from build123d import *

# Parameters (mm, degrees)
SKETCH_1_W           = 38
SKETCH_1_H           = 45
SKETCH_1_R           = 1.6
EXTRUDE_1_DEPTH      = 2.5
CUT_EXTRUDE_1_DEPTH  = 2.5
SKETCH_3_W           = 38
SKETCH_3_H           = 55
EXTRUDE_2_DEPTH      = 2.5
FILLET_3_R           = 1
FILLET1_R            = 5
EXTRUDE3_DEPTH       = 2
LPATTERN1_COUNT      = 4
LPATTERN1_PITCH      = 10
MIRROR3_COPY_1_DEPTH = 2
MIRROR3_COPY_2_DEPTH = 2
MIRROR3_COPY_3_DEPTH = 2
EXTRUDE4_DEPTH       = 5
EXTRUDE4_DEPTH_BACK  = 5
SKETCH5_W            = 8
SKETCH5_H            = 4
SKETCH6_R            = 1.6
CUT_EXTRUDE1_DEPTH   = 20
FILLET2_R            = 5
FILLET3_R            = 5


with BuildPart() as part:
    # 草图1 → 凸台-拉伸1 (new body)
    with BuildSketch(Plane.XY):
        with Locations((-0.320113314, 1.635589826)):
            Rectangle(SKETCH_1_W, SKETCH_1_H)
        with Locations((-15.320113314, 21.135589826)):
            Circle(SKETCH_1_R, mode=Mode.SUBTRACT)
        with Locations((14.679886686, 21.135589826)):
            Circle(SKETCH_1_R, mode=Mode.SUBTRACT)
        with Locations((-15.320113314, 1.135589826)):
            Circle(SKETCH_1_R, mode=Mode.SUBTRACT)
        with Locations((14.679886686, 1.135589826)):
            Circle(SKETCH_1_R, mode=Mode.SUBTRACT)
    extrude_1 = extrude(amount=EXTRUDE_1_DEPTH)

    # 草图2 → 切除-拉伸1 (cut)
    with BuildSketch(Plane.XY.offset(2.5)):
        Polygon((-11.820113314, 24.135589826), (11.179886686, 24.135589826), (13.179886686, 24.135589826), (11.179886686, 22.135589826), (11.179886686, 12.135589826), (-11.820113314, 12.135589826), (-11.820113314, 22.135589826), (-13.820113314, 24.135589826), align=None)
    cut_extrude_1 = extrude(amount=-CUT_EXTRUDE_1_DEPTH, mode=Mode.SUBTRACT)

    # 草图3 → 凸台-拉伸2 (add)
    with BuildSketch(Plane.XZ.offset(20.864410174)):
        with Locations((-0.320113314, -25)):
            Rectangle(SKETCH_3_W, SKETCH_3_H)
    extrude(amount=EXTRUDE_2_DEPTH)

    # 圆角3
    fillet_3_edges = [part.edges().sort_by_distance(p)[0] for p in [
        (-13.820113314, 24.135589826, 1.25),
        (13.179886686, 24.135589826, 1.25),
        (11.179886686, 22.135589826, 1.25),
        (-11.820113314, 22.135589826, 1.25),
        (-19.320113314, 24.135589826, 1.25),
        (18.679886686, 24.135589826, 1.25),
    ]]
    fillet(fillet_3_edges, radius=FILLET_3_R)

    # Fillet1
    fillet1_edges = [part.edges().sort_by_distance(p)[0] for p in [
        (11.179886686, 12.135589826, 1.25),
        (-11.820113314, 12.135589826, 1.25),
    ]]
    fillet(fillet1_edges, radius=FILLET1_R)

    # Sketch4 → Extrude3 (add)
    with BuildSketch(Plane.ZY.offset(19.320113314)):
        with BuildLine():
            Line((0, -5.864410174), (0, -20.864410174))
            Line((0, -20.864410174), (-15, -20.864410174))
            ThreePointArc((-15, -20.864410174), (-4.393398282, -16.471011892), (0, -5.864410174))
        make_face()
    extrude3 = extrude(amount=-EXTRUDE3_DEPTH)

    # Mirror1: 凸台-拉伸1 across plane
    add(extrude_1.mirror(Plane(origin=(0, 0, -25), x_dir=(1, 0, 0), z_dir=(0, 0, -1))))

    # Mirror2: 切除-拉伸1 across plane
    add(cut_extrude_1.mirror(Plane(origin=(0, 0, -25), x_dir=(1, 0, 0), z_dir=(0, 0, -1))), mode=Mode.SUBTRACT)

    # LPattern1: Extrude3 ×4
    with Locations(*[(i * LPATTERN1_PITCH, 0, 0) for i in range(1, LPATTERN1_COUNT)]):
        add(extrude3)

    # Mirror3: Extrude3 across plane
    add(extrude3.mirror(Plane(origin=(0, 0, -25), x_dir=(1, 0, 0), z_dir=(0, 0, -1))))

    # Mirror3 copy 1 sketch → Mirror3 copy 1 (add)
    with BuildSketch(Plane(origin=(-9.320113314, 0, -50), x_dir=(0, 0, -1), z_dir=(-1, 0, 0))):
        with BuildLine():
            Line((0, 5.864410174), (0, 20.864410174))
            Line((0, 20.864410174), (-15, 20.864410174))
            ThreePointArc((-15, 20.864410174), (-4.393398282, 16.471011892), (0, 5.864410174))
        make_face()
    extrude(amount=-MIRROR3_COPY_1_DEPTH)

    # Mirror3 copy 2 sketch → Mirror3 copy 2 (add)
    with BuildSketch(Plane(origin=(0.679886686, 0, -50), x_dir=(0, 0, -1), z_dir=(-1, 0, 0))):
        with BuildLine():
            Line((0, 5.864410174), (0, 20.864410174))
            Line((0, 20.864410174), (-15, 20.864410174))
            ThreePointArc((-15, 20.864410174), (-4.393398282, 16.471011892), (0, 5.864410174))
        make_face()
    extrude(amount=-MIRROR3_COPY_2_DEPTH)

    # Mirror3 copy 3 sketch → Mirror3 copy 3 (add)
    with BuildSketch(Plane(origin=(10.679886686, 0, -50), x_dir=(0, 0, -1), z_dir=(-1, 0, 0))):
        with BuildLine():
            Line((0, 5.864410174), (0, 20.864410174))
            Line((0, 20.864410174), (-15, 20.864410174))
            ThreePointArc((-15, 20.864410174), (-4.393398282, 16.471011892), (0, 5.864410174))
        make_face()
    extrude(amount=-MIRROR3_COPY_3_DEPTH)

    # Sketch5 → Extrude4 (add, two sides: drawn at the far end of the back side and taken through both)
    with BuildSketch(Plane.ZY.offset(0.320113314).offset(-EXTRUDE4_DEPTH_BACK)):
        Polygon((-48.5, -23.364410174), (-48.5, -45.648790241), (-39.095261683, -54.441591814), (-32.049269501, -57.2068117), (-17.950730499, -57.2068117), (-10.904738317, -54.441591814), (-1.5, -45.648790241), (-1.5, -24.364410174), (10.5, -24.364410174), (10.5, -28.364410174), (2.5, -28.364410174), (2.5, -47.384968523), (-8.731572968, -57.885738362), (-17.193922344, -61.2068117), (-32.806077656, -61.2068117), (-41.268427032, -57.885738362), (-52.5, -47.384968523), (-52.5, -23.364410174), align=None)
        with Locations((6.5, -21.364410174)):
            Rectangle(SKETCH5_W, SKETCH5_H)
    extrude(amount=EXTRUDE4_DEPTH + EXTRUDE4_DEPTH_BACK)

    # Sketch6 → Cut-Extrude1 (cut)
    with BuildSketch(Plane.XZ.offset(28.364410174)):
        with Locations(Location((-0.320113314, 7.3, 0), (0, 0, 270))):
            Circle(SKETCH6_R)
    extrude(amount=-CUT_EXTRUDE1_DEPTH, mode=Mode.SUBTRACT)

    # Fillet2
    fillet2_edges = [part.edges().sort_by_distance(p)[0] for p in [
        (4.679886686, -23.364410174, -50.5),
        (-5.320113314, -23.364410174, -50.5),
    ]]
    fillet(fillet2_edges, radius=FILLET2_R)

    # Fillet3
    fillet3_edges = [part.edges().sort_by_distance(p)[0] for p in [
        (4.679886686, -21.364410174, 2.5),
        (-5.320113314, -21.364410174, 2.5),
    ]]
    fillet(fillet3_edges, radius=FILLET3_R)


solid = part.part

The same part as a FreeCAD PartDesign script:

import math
import FreeCAD as App
import Part
import Sketcher

V = App.Vector


def edges_at(feature, points):
    """Names of the edges that pass closest to the given points."""
    edges = feature.Shape.Edges
    near = lambda p: min(range(len(edges)), key=lambda i: edges[i].distToShape(Part.Vertex(*p))[0])
    return sorted({f"Edge{near(p) + 1}" for p in points})

doc = App.newDocument("Part")
body = doc.addObject("PartDesign::Body", "Body")

sketch1 = doc.addObject("Sketcher::SketchObject", "Sketch")
body.addObject(sketch1)
sketch1.AttachmentSupport = (doc.XY_Plane, [""])
sketch1.MapMode = "FlatFace"
sketch1.addGeometry([
    Part.LineSegment(V(-19.3, 24.1, 0), V(-19.3, -20.9, 0)),
    Part.LineSegment(V(-19.3, -20.9, 0), V(18.7, -20.9, 0)),
    Part.LineSegment(V(18.7, -20.9, 0), V(18.7, 24.1, 0)),
    Part.LineSegment(V(18.7, 24.1, 0), V(-19.3, 24.1, 0)),
    Part.Circle(V(-15.3, 1.1, 0), V(0, 0, 1), 1.6),
    Part.Circle(V(14.7, 1.1, 0), V(0, 0, 1), 1.6),
    Part.Circle(V(-15.3, 21.1, 0), V(0, 0, 1), 1.6),
    Part.Circle(V(14.7, 21.1, 0), V(0, 0, 1), 1.6),
], False)
sketch1.addConstraint([
    Sketcher.Constraint("Coincident", 0, 2, 1, 1),
    Sketcher.Constraint("Coincident", 1, 2, 2, 1),
    Sketcher.Constraint("Coincident", 2, 2, 3, 1),
    Sketcher.Constraint("Coincident", 3, 2, 0, 1),
    Sketcher.Constraint("Vertical", 0),
    Sketcher.Constraint("Horizontal", 1),
    Sketcher.Constraint("Vertical", 2),
    Sketcher.Constraint("Horizontal", 3),
    Sketcher.Constraint("Equal", 4, 5),
    Sketcher.Constraint("Equal", 5, 6),
    Sketcher.Constraint("Equal", 6, 7),
    Sketcher.Constraint("Horizontal", 4, 3, 5, 3),
    Sketcher.Constraint("Horizontal", 6, 3, 7, 3),
    Sketcher.Constraint("Vertical", 4, 3, 6, 3),
    Sketcher.Constraint("Vertical", 5, 3, 7, 3),
    Sketcher.Constraint("Diameter", 4, 3.2),
    Sketcher.Constraint("DistanceX", 1, 1, 1, 2, 38.0),
    Sketcher.Constraint("DistanceY", 0, 2, 0, 1, 45.0),
    Sketcher.Constraint("DistanceX", 4, 3, 5, 3, 30.0),
    Sketcher.Constraint("DistanceY", 4, 3, 6, 3, 20.0),
    Sketcher.Constraint("DistanceX", 0, 2, 4, 3, 4.0),
    Sketcher.Constraint("DistanceY", 0, 2, 4, 3, 22.0),
    Sketcher.Constraint("DistanceY", -1, 1, 4, 3, 1.13559),
    Sketcher.Constraint("DistanceX", 4, 3, -1, 1, 15.320113),
])
pad1 = doc.addObject("PartDesign::Pad", "Pad")
body.addObject(pad1)
pad1.Profile = sketch1
pad1.Length = 2.5

sketch2 = doc.addObject("Sketcher::SketchObject", "Sketch001")
body.addObject(sketch2)
sketch2.AttachmentSupport = (doc.XY_Plane, [""])
sketch2.MapMode = "FlatFace"
sketch2.AttachmentOffset = App.Placement(V(0, 0, 2.5), App.Rotation())
sketch2.addGeometry([
    Part.LineSegment(V(13.2, 24.1, 0), V(-13.8, 24.1, 0)),
    Part.LineSegment(V(-13.8, 24.1, 0), V(-11.8, 22.1, 0)),
    Part.LineSegment(V(-11.8, 22.1, 0), V(-11.8, 12.1, 0)),
    Part.LineSegment(V(-11.8, 12.1, 0), V(11.2, 12.1, 0)),
    Part.LineSegment(V(11.2, 12.1, 0), V(11.2, 22.1, 0)),
    Part.LineSegment(V(11.2, 22.1, 0), V(13.2, 24.1, 0)),
], False)
sketch2.addConstraint([
    Sketcher.Constraint("Coincident", 0, 2, 1, 1),
    Sketcher.Constraint("Coincident", 1, 2, 2, 1),
    Sketcher.Constraint("Coincident", 2, 2, 3, 1),
    Sketcher.Constraint("Coincident", 3, 2, 4, 1),
    Sketcher.Constraint("Coincident", 4, 2, 5, 1),
    Sketcher.Constraint("Coincident", 5, 2, 0, 1),
    Sketcher.Constraint("Horizontal", 0),
    Sketcher.Constraint("Vertical", 2),
    Sketcher.Constraint("Horizontal", 3),
    Sketcher.Constraint("Vertical", 4),
    Sketcher.Constraint("Perpendicular", 1, 5),
    Sketcher.Constraint("Horizontal", 1, 2, 4, 2),
    Sketcher.Constraint("Equal", 1, 5),
    Sketcher.Constraint("DistanceX", 0, 2, 0, 1, 27.0),
    Sketcher.Constraint("DistanceX", 3, 1, 3, 2, 23.0),
    Sketcher.Constraint("DistanceY", 2, 2, 2, 1, 10.0),
    Sketcher.Constraint("DistanceY", -1, 1, 0, 2, 24.13559),
    Sketcher.Constraint("DistanceX", 0, 2, -1, 1, 13.820113),
])
pocket1 = doc.addObject("PartDesign::Pocket", "Pocket")
body.addObject(pocket1)
pocket1.Profile = sketch2
pocket1.Length = 2.5

sketch3 = doc.addObject("Sketcher::SketchObject", "Sketch002")
body.addObject(sketch3)
sketch3.AttachmentSupport = (doc.XZ_Plane, [""])
sketch3.MapMode = "FlatFace"
sketch3.AttachmentOffset = App.Placement(V(0, 0, 20.86441), App.Rotation())
sketch3.addGeometry([
    Part.LineSegment(V(-19, 2, 0), V(-19, -52, 0)),
    Part.LineSegment(V(-19, -52, 0), V(19, -52, 0)),
    Part.LineSegment(V(19, -52, 0), V(19, 2, 0)),
    Part.LineSegment(V(19, 2, 0), V(-19, 2, 0)),
], False)
sketch3.addConstraint([
    Sketcher.Constraint("Coincident", 0, 2, 1, 1),
    Sketcher.Constraint("Coincident", 1, 2, 2, 1),
    Sketcher.Constraint("Coincident", 2, 2, 3, 1),
    Sketcher.Constraint("Coincident", 3, 2, 0, 1),
    Sketcher.Constraint("Vertical", 0),
    Sketcher.Constraint("Horizontal", 1),
    Sketcher.Constraint("Vertical", 2),
    Sketcher.Constraint("Horizontal", 3),
    Sketcher.Constraint("DistanceX", 1, 1, 1, 2, 38.0),
    Sketcher.Constraint("DistanceY", 0, 2, 0, 1, 55.0),
    Sketcher.Constraint("DistanceY", 0, 2, -1, 1, 52.5),
    Sketcher.Constraint("DistanceX", 0, 2, -1, 1, 19.320113),
])
pad2 = doc.addObject("PartDesign::Pad", "Pad001")
body.addObject(pad2)
pad2.Profile = sketch3
pad2.Length = 2.5
doc.recompute()

fillet = doc.addObject("PartDesign::Fillet", "Fillet")
body.addObject(fillet)
fillet.Base = (pad2, edges_at(pad2, [
    (-13.82, 24.136, 1.25),
    (13.18, 24.136, 1.25),
    (11.18, 22.136, 1.25),
    (-11.82, 22.136, 1.25),
    (-19.32, 24.136, 1.25),
    (18.68, 24.136, 1.25),
]))
fillet.Radius = 1
doc.recompute()

fillet2 = doc.addObject("PartDesign::Fillet", "Fillet001")
body.addObject(fillet2)
fillet2.Base = (fillet, edges_at(fillet, [(11.18, 12.136, 1.25), (-11.82, 12.136, 1.25)]))
fillet2.Radius = 5

sketch4 = doc.addObject("Sketcher::SketchObject", "Sketch003")
body.addObject(sketch4)
sketch4.AttachmentSupport = (doc.YZ_Plane, [""])
sketch4.MapMode = "FlatFace"
sketch4.AttachmentOffset = App.Placement(V(0, 0, -19.320113), App.Rotation())
sketch4.addGeometry([
    Part.LineSegment(V(-21, 0, 0), V(-6, 0, 0)),
    Part.ArcOfCircle(Part.Circle(V(-6, -15, 0), V(0, 0, 1), 15), math.radians(90), math.radians(180)),
    Part.LineSegment(V(-21, -15, 0), V(-21, 0, 0)),
], False)
sketch4.addConstraint([
    Sketcher.Constraint("Tangent", 0, 2, 1, 1),
    Sketcher.Constraint("Tangent", 1, 2, 2, 1),
    Sketcher.Constraint("Coincident", 2, 2, 0, 1),
    Sketcher.Constraint("Horizontal", 0),
    Sketcher.Constraint("Vertical", 2),
    Sketcher.Constraint("PointOnObject", 0, 2, -1),
    Sketcher.Constraint("Radius", 1, 15.0),
    Sketcher.Constraint("DistanceX", 1, 3, -1, 1, 5.86441),
])
pad3 = doc.addObject("PartDesign::Pad", "Pad002")
body.addObject(pad3)
pad3.Profile = sketch4
pad3.Length = 2
doc.recompute()

datumplane = doc.addObject("PartDesign::Plane", "DatumPlane")
body.addObject(datumplane)
datumplane.AttachmentSupport = (doc.XY_Plane, [""])
datumplane.MapMode = "FlatFace"
datumplane.AttachmentOffset = App.Placement(V(0, 0, -25), App.Rotation())
mirrored = doc.addObject("PartDesign::Mirrored", "Mirrored")
body.addObject(mirrored)
mirrored.Originals = [pad1]
mirrored.MirrorPlane = (datumplane, [""])
body.Tip = mirrored
doc.recompute()

datumplane2 = doc.addObject("PartDesign::Plane", "DatumPlane001")
body.addObject(datumplane2)
datumplane2.AttachmentSupport = (doc.XY_Plane, [""])
datumplane2.MapMode = "FlatFace"
datumplane2.AttachmentOffset = App.Placement(V(0, 0, -25), App.Rotation())
mirrored2 = doc.addObject("PartDesign::Mirrored", "Mirrored001")
body.addObject(mirrored2)
mirrored2.Originals = [pocket1]
mirrored2.MirrorPlane = (datumplane2, [""])
body.Tip = mirrored2
doc.recompute()

linearpattern = doc.addObject("PartDesign::LinearPattern", "LinearPattern")
body.addObject(linearpattern)
linearpattern.Originals = [pad3]
linearpattern.Direction = (doc.X_Axis, [""])
linearpattern.Mode = "offset"
linearpattern.Offset = 10
linearpattern.Occurrences = 4
body.Tip = linearpattern
doc.recompute()

datumplane3 = doc.addObject("PartDesign::Plane", "DatumPlane002")
body.addObject(datumplane3)
datumplane3.AttachmentSupport = (doc.XY_Plane, [""])
datumplane3.MapMode = "FlatFace"
datumplane3.AttachmentOffset = App.Placement(V(0, 0, -25), App.Rotation())
mirrored3 = doc.addObject("PartDesign::Mirrored", "Mirrored002")
body.addObject(mirrored3)
mirrored3.Originals = [pad3]
mirrored3.MirrorPlane = (datumplane3, [""])
body.Tip = mirrored3

sketch5 = doc.addObject("Sketcher::SketchObject", "Sketch004")
body.addObject(sketch5)
sketch5.AttachmentSupport = (doc.YZ_Plane, [""])
sketch5.MapMode = "FlatFace"
sketch5.AttachmentOffset = App.Placement(V(0, 0, -9.320113), App.Rotation())
sketch5.addGeometry([
    Part.LineSegment(V(-6, -50, 0), V(-21, -50, 0)),
    Part.LineSegment(V(-21, -50, 0), V(-21, -35, 0)),
    Part.ArcOfCircle(Part.Circle(V(-6, -35, 0), V(0, 0, 1), 15), math.radians(180), math.radians(270)),
], False)
sketch5.addConstraint([
    Sketcher.Constraint("Coincident", 0, 2, 1, 1),
    Sketcher.Constraint("Tangent", 1, 2, 2, 1),
    Sketcher.Constraint("Tangent", 2, 2, 0, 1),
    Sketcher.Constraint("Horizontal", 0),
    Sketcher.Constraint("Vertical", 1),
    Sketcher.Constraint("Radius", 2, 15.0),
    Sketcher.Constraint("DistanceY", 2, 3, -1, 1, 35.0),
    Sketcher.Constraint("DistanceX", 2, 3, -1, 1, 5.86441),
])
pad4 = doc.addObject("PartDesign::Pad", "Pad003")
body.addObject(pad4)
pad4.Profile = sketch5
pad4.Length = 2

sketch6 = doc.addObject("Sketcher::SketchObject", "Sketch005")
body.addObject(sketch6)
sketch6.AttachmentSupport = (doc.YZ_Plane, [""])
sketch6.MapMode = "FlatFace"
sketch6.AttachmentOffset = App.Placement(V(0, 0, 0.679887), App.Rotation())
sketch6.addGeometry([
    Part.LineSegment(V(-6, -50, 0), V(-21, -50, 0)),
    Part.LineSegment(V(-21, -50, 0), V(-21, -35, 0)),
    Part.ArcOfCircle(Part.Circle(V(-6, -35, 0), V(0, 0, 1), 15), math.radians(180), math.radians(270)),
], False)
sketch6.addConstraint([
    Sketcher.Constraint("Coincident", 0, 2, 1, 1),
    Sketcher.Constraint("Tangent", 1, 2, 2, 1),
    Sketcher.Constraint("Tangent", 2, 2, 0, 1),
    Sketcher.Constraint("Horizontal", 0),
    Sketcher.Constraint("Vertical", 1),
    Sketcher.Constraint("Radius", 2, 15.0),
    Sketcher.Constraint("DistanceY", 2, 3, -1, 1, 35.0),
    Sketcher.Constraint("DistanceX", 2, 3, -1, 1, 5.86441),
])
pad5 = doc.addObject("PartDesign::Pad", "Pad004")
body.addObject(pad5)
pad5.Profile = sketch6
pad5.Length = 2

sketch7 = doc.addObject("Sketcher::SketchObject", "Sketch006")
body.addObject(sketch7)
sketch7.AttachmentSupport = (doc.YZ_Plane, [""])
sketch7.MapMode = "FlatFace"
sketch7.AttachmentOffset = App.Placement(V(0, 0, 10.679887), App.Rotation())
sketch7.addGeometry([
    Part.LineSegment(V(-6, -50, 0), V(-21, -50, 0)),
    Part.LineSegment(V(-21, -50, 0), V(-21, -35, 0)),
    Part.ArcOfCircle(Part.Circle(V(-6, -35, 0), V(0, 0, 1), 15), math.radians(180), math.radians(270)),
], False)
sketch7.addConstraint([
    Sketcher.Constraint("Coincident", 0, 2, 1, 1),
    Sketcher.Constraint("Tangent", 1, 2, 2, 1),
    Sketcher.Constraint("Tangent", 2, 2, 0, 1),
    Sketcher.Constraint("Horizontal", 0),
    Sketcher.Constraint("Vertical", 1),
    Sketcher.Constraint("Radius", 2, 15.0),
    Sketcher.Constraint("DistanceY", 2, 3, -1, 1, 35.0),
    Sketcher.Constraint("DistanceX", 2, 3, -1, 1, 5.86441),
])
pad6 = doc.addObject("PartDesign::Pad", "Pad005")
body.addObject(pad6)
pad6.Profile = sketch7
pad6.Length = 2

sketch8 = doc.addObject("Sketcher::SketchObject", "Sketch007")
body.addObject(sketch8)
sketch8.AttachmentSupport = (doc.YZ_Plane, [""])
sketch8.MapMode = "FlatFace"
sketch8.AttachmentOffset = App.Placement(V(0, 0, -0.320113), App.Rotation())
sketch8.addGeometry([
    Part.LineSegment(V(-45.6, -48.5, 0), V(-23.4, -48.5, 0)),
    Part.LineSegment(V(-23.4, -48.5, 0), V(-23.4, -52.5, 0)),
    Part.LineSegment(V(-23.4, -52.5, 0), V(-47.4, -52.5, 0)),
    Part.LineSegment(V(-47.4, -52.5, 0), V(-57.9, -41.3, 0)),
    Part.LineSegment(V(-57.9, -41.3, 0), V(-61.2, -32.8, 0)),
    Part.LineSegment(V(-61.2, -32.8, 0), V(-61.2, -17.2, 0)),
    Part.LineSegment(V(-61.2, -17.2, 0), V(-57.9, -8.7, 0)),
    Part.LineSegment(V(-57.9, -8.7, 0), V(-47.4, 2.5, 0)),
    Part.LineSegment(V(-47.4, 2.5, 0), V(-28.4, 2.5, 0)),
    Part.LineSegment(V(-28.4, 2.5, 0), V(-28.4, 10.5, 0)),
    Part.LineSegment(V(-28.4, 10.5, 0), V(-24.4, 10.5, 0)),
    Part.LineSegment(V(-24.4, 10.5, 0), V(-24.4, -1.5, 0)),
    Part.LineSegment(V(-24.4, -1.5, 0), V(-45.6, -1.5, 0)),
    Part.LineSegment(V(-45.6, -1.5, 0), V(-54.4, -10.9, 0)),
    Part.LineSegment(V(-54.4, -10.9, 0), V(-57.2, -18, 0)),
    Part.LineSegment(V(-57.2, -18, 0), V(-57.2, -32, 0)),
    Part.LineSegment(V(-57.2, -32, 0), V(-54.4, -39.1, 0)),
    Part.LineSegment(V(-54.4, -39.1, 0), V(-45.6, -48.5, 0)),
    Part.LineSegment(V(-19.4, 2.5, 0), V(-23.4, 2.5, 0)),
    Part.LineSegment(V(-23.4, 2.5, 0), V(-23.4, 10.5, 0)),
    Part.LineSegment(V(-23.4, 10.5, 0), V(-19.4, 10.5, 0)),
    Part.LineSegment(V(-19.4, 10.5, 0), V(-19.4, 2.5, 0)),
], False)
sketch8.addConstraint([
    Sketcher.Constraint("Coincident", 0, 2, 1, 1),
    Sketcher.Constraint("Coincident", 1, 2, 2, 1),
    Sketcher.Constraint("Coincident", 2, 2, 3, 1),
    Sketcher.Constraint("Coincident", 3, 2, 4, 1),
    Sketcher.Constraint("Coincident", 4, 2, 5, 1),
    Sketcher.Constraint("Coincident", 5, 2, 6, 1),
    Sketcher.Constraint("Coincident", 6, 2, 7, 1),
    Sketcher.Constraint("Coincident", 7, 2, 8, 1),
    Sketcher.Constraint("Coincident", 8, 2, 9, 1),
    Sketcher.Constraint("Coincident", 9, 2, 10, 1),
    Sketcher.Constraint("Coincident", 10, 2, 11, 1),
    Sketcher.Constraint("Coincident", 11, 2, 12, 1),
    Sketcher.Constraint("Coincident", 12, 2, 13, 1),
    Sketcher.Constraint("Coincident", 13, 2, 14, 1),
    Sketcher.Constraint("Coincident", 14, 2, 15, 1),
    Sketcher.Constraint("Coincident", 15, 2, 16, 1),
    Sketcher.Constraint("Coincident", 16, 2, 17, 1),
    Sketcher.Constraint("Coincident", 17, 2, 0, 1),
    Sketcher.Constraint("Coincident", 18, 2, 19, 1),
    Sketcher.Constraint("Coincident", 19, 2, 20, 1),
    Sketcher.Constraint("Coincident", 20, 2, 21, 1),
    Sketcher.Constraint("Coincident", 21, 2, 18, 1),
    Sketcher.Constraint("Horizontal", 0),
    Sketcher.Constraint("Vertical", 1),
    Sketcher.Constraint("Horizontal", 2),
    Sketcher.Constraint("Vertical", 5),
    Sketcher.Constraint("Horizontal", 8),
    Sketcher.Constraint("Vertical", 9),
    Sketcher.Constraint("Horizontal", 10),
    Sketcher.Constraint("Vertical", 11),
    Sketcher.Constraint("Horizontal", 12),
    Sketcher.Constraint("Vertical", 15),
    Sketcher.Constraint("Horizontal", 18),
    Sketcher.Constraint("Vertical", 19),
    Sketcher.Constraint("Horizontal", 20),
    Sketcher.Constraint("Vertical", 21),
    Sketcher.Constraint("Parallel", 7, 13),
    Sketcher.Constraint("Parallel", 6, 14),
    Sketcher.Constraint("Parallel", 4, 16),
    Sketcher.Constraint("Parallel", 3, 17),
    Sketcher.Constraint("Horizontal", 8, 2, 18, 2),
    Sketcher.Constraint("Horizontal", 10, 2, 19, 2),
    Sketcher.Constraint("Vertical", 3, 2, 6, 2),
    Sketcher.Constraint("Vertical", 2, 2, 7, 2),
    Sketcher.Constraint("Vertical", 13, 2, 16, 2),
    Sketcher.Constraint("Vertical", 12, 2, 17, 2),
    Sketcher.Constraint("Vertical", 1, 2, 18, 2),
    Sketcher.Constraint("Equal", 10, 18),
    Sketcher.Constraint("Equal", 20, 1),
    Sketcher.Constraint("Equal", 4, 6),
    Sketcher.Constraint("Equal", 3, 7),
    Sketcher.Constraint("DistanceX", 10, 1, 10, 2, 4.0),
    Sketcher.Constraint("DistanceY", 9, 1, 9, 2, 8.0),
    Sketcher.Constraint("DistanceY", 11, 2, 11, 1, 12.0),
    Sketcher.Constraint("DistanceY", 2, 2, 7, 2, 55.0),
    Sketcher.Constraint("DistanceX", 8, 2, 0, 2, 5.0),
    Sketcher.Constraint("DistanceX", 5, 2, 14, 2, 4.0),
    Sketcher.Constraint("DistanceY", 0, 2, -1, 1, 48.5),
    Sketcher.Constraint("DistanceX", 0, 1, 0, 2, 22.28438),
    Sketcher.Constraint("DistanceX", 2, 2, 2, 1, 24.020558),
    Sketcher.Constraint("DistanceY", 15, 2, 15, 1, 14.098539),
    Sketcher.Constraint("DistanceX", 4, 2, 0, 2, 37.842402),
    Sketcher.Constraint("DistanceX", 13, 2, 12, 2, 8.792802),
    Sketcher.Constraint("DistanceY", 5, 1, 5, 2, 15.612155),
    Sketcher.Constraint("DistanceX", 0, 2, -1, 1, 23.36441),
    Sketcher.Constraint("DistanceY", 13, 2, -1, 1, 10.904738),
])
pad7 = doc.addObject("PartDesign::Pad", "Pad006")
body.addObject(pad7)
pad7.Profile = sketch8
pad7.Type = "TwoLengths"
pad7.Length = 5
pad7.Length2 = 5
pad7.Reversed = True

sketch9 = doc.addObject("Sketcher::SketchObject", "Sketch008")
body.addObject(sketch9)
sketch9.AttachmentSupport = (doc.XZ_Plane, [""])
sketch9.MapMode = "FlatFace"
sketch9.AttachmentOffset = App.Placement(V(0, 0, 28.36441), App.Rotation())
sketch9.addGeometry(Part.Circle(V(-0.3, 7.3, 0), V(0, 0, 1), 1.6), False)
sketch9.addConstraint([
    Sketcher.Constraint("Diameter", 0, 3.2),
    Sketcher.Constraint("DistanceY", -1, 1, 0, 3, 7.3),
    Sketcher.Constraint("DistanceX", 0, 3, -1, 1, 0.320113),
])
pocket2 = doc.addObject("PartDesign::Pocket", "Pocket001")
body.addObject(pocket2)
pocket2.Profile = sketch9
pocket2.Length = 20
doc.recompute()

fillet3 = doc.addObject("PartDesign::Fillet", "Fillet002")
body.addObject(fillet3)
fillet3.Base = (pocket2, edges_at(pocket2, [(4.68, -23.364, -50.5), (-5.32, -23.364, -50.5)]))
fillet3.Radius = 5
doc.recompute()

fillet4 = doc.addObject("PartDesign::Fillet", "Fillet003")
body.addObject(fillet4)
fillet4.Base = (fillet3, edges_at(fillet3, [(4.68, -21.364, 2.5), (-5.32, -21.364, 2.5)]))
fillet4.Radius = 5

doc.recompute()
